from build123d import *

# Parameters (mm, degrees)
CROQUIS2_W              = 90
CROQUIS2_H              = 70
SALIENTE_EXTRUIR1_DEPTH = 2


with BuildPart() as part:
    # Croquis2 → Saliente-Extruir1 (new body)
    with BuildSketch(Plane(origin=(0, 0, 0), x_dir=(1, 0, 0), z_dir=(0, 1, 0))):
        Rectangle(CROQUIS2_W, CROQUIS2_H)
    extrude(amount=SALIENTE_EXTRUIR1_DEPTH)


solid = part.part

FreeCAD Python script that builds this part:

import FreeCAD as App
import Part
import Sketcher
from FreeCAD import Vector
Q = App.Units.Quantity

doc = App.newDocument("Part")
body = doc.addObject("PartDesign::Body", "Body")

sketch1 = body.newObject("Sketcher::SketchObject", "Sketch")
sketch1.AttachmentSupport = (doc.getObject("XZ_Plane"), [""])
sketch1.MapMode = "FlatFace"
sketch1.addGeometry(Part.LineSegment(Vector(-45, -35, 0), Vector(-45, 35, 0)), False)
sketch1.addGeometry(Part.LineSegment(Vector(-45, 35, 0), Vector(45, 35, 0)), False)
sketch1.addGeometry(Part.LineSegment(Vector(45, 35, 0), Vector(45, -35, 0)), False)
sketch1.addGeometry(Part.LineSegment(Vector(45, -35, 0), Vector(-45, -35, 0)), False)
sketch1.addConstraint(Sketcher.Constraint("Coincident", 0, 2, 1, 1))
sketch1.addConstraint(Sketcher.Constraint("Coincident", 1, 2, 2, 1))
sketch1.addConstraint(Sketcher.Constraint("Coincident", 2, 2, 3, 1))
sketch1.addConstraint(Sketcher.Constraint("Coincident", 3, 2, 0, 1))
sketch1.addConstraint(Sketcher.Constraint("Vertical", 0))
sketch1.addConstraint(Sketcher.Constraint("Horizontal", 1))
sketch1.addConstraint(Sketcher.Constraint("Vertical", 2))
sketch1.addConstraint(Sketcher.Constraint("Horizontal", 3))
sketch1.addConstraint(Sketcher.Constraint("Symmetric", 0, 2, 2, 2, -1, 1))
sketch1.addConstraint(Sketcher.Constraint("DistanceX", 1, 1, 1, 2, Q("90 mm")))
sketch1.addConstraint(Sketcher.Constraint("DistanceY", 0, 1, 0, 2, Q("70 mm")))
pad1 = body.newObject("PartDesign::Pad", "Pad")
pad1.Profile = sketch1
pad1.Length = 2
pad1.Reversed = True

doc.recompute()
